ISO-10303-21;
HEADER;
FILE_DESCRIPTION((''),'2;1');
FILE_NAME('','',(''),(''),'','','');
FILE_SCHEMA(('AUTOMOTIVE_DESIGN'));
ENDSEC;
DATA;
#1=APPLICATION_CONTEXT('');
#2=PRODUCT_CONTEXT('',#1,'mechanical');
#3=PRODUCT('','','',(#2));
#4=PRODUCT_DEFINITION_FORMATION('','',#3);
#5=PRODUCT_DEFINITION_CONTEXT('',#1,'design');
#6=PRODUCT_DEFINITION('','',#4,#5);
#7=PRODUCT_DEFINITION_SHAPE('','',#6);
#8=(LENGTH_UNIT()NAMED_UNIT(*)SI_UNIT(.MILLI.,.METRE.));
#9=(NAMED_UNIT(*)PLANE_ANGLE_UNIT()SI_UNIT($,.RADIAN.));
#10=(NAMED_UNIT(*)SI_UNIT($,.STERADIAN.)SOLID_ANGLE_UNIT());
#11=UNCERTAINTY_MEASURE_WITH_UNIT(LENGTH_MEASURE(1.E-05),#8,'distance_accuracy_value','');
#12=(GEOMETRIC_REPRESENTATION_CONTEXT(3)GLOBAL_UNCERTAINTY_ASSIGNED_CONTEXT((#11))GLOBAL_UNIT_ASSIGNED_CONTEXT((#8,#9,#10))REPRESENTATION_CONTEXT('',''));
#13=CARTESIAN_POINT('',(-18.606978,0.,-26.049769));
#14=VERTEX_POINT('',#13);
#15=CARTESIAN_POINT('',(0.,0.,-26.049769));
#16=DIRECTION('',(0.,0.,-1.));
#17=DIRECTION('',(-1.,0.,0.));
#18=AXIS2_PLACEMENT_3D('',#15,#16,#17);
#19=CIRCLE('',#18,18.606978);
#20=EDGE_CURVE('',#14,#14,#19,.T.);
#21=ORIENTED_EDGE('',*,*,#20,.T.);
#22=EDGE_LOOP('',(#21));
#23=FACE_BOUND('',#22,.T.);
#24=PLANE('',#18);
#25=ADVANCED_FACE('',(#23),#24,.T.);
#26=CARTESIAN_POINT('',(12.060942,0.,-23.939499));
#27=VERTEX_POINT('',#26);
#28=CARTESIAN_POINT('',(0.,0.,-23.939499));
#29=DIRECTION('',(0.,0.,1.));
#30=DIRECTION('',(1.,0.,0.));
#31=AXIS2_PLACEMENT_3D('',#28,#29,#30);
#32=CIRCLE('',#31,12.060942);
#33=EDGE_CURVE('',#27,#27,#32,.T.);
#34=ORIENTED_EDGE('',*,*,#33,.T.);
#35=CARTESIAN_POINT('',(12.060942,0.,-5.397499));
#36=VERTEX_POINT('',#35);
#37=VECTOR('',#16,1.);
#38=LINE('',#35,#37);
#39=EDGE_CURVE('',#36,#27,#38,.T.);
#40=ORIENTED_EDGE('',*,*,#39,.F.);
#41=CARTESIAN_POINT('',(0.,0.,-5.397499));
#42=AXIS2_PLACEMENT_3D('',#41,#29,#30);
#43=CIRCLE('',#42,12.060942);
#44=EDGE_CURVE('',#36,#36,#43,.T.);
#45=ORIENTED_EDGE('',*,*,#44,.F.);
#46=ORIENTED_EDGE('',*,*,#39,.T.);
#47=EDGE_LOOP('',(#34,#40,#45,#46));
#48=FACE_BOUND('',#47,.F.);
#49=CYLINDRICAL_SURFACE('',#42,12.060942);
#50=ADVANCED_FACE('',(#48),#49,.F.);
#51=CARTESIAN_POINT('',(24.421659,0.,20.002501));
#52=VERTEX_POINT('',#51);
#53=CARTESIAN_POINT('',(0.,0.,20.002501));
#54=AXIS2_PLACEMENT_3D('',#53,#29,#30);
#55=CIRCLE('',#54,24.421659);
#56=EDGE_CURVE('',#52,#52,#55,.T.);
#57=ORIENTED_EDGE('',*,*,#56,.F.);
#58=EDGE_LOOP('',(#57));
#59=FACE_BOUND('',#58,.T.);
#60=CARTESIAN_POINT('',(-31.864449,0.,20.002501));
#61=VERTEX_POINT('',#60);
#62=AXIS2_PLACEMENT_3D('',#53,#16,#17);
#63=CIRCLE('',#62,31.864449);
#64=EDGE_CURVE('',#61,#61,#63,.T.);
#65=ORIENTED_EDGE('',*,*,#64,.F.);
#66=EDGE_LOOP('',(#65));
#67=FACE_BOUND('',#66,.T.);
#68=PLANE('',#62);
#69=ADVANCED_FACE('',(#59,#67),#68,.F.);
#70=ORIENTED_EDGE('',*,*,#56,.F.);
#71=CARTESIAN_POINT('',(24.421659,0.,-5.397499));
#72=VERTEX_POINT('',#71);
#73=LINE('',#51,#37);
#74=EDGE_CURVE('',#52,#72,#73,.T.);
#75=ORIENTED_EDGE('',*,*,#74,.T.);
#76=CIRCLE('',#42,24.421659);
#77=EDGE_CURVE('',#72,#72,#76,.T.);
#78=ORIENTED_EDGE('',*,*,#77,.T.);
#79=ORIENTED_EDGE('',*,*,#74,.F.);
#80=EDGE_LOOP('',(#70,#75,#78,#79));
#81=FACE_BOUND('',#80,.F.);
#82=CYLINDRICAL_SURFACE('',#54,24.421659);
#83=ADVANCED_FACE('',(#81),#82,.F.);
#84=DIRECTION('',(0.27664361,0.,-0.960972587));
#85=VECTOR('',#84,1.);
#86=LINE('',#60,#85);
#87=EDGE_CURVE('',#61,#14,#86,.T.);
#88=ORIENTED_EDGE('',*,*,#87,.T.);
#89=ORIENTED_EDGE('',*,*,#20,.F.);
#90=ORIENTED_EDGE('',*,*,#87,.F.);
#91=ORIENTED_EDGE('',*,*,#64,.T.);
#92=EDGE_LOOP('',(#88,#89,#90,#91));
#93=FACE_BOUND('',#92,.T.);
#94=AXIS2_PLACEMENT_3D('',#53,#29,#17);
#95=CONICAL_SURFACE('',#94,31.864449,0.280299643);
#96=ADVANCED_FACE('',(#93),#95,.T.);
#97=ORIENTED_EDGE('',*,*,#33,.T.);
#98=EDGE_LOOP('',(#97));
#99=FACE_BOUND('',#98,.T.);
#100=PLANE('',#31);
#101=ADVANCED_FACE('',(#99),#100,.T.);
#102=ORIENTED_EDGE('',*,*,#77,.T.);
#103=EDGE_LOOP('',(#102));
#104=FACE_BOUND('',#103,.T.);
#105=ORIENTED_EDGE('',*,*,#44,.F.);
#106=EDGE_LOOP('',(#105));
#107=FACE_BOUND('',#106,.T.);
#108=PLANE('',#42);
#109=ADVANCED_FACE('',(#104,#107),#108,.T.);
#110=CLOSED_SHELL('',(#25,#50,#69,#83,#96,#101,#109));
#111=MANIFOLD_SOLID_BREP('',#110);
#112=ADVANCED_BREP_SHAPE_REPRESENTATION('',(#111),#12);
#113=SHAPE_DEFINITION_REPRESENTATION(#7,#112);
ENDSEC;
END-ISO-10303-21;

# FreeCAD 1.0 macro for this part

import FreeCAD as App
import Part
import Sketcher

V = App.Vector
Q = App.Units.Quantity


def add_polygon(sketch, points):
    """Adds a closed chain of lines whose ends are joined by coincident constraints."""
    first, n = sketch.GeometryCount, len(points)
    for a, b in zip(points, points[1:] + points[:1]):
        sketch.addGeometry(Part.LineSegment(App.Vector(*a, 0), App.Vector(*b, 0)), False)
    for i in range(n):
        sketch.addConstraint(Sketcher.Constraint("Coincident", first + i, 2, first + (i + 1) % n, 1))

doc = App.newDocument("Part")
body = doc.addObject("PartDesign::Body", "Body")

# Sketch on XZ plane
sketch1 = body.newObject("Sketcher::SketchObject", "Sketch")
sketch1.AttachmentSupport = (doc.getObject("XZ_Plane"), [""])
sketch1.MapMode = "FlatFace"
add_polygon(sketch1, [(0, -26), (0, 20), (-32, 20), (-19, -26)])  # lines 0-3
sketch1.addConstraint(Sketcher.Constraint("Vertical", 0))
sketch1.addConstraint(Sketcher.Constraint("Horizontal", 1))
sketch1.addConstraint(Sketcher.Constraint("Horizontal", 3))
sketch1.addConstraint(Sketcher.Constraint("PointOnObject", 0, 2, -2))
sketch1.addConstraint(Sketcher.Constraint("Angle", 2, Q("-73.940013 deg")))
sketch1.addConstraint(Sketcher.Constraint("DistanceY", -1, 1, 0, 2, Q("0.7875 in")))
sketch1.addConstraint(Sketcher.Constraint("DistanceX", 1, 2, 1, 1, Q("31.864449 mm")))
sketch1.addConstraint(Sketcher.Constraint("DistanceX", 3, 1, 3, 2, Q("18.606978 mm")))
revolution = body.newObject("PartDesign::Revolution", "Revolution")
revolution.Profile = sketch1
revolution.ReferenceAxis = (sketch1, ["V_Axis"])
revolution.Angle = 360

# Sketch on XY plane
sketch2 = body.newObject("Sketcher::SketchObject", "Sketch001")
sketch2.AttachmentSupport = (doc.getObject("XY_Plane"), [""])
sketch2.MapMode = "FlatFace"
sketch2.AttachmentOffset = App.Placement(V(0, 0, 0.7875 * 25.4), App.Rotation())
sketch2.addGeometry(Part.Circle(V(0, 0, 0), V(0, 0, 1), 24), False)
sketch2.addConstraint(Sketcher.Constraint("Coincident", 0, 3, -1, 1))
sketch2.addConstraint(Sketcher.Constraint("Diameter", 0, Q("48.843318 mm")))
pocket1 = body.newObject("PartDesign::Pocket", "Pocket")
pocket1.Profile = sketch2
pocket1.Length = Q("1 in")

# Sketch on XY plane
sketch3 = body.newObject("Sketcher::SketchObject", "Sketch002")
sketch3.AttachmentSupport = (doc.getObject("XY_Plane"), [""])
sketch3.MapMode = "FlatFace"
sketch3.AttachmentOffset = App.Placement(V(0, 0, -0.2125 * 25.4), App.Rotation())
sketch3.addGeometry(Part.Circle(V(0, 0, 0), V(0, 0, 1), 12), False)
sketch3.addConstraint(Sketcher.Constraint("Coincident", 0, 3, -1, 1))
sketch3.addConstraint(Sketcher.Constraint("Diameter", 0, Q("24.121884 mm")))
pocket2 = body.newObject("PartDesign::Pocket", "Pocket001")
pocket2.Profile = sketch3
pocket2.Length = Q("0.73 in")

doc.recompute()
